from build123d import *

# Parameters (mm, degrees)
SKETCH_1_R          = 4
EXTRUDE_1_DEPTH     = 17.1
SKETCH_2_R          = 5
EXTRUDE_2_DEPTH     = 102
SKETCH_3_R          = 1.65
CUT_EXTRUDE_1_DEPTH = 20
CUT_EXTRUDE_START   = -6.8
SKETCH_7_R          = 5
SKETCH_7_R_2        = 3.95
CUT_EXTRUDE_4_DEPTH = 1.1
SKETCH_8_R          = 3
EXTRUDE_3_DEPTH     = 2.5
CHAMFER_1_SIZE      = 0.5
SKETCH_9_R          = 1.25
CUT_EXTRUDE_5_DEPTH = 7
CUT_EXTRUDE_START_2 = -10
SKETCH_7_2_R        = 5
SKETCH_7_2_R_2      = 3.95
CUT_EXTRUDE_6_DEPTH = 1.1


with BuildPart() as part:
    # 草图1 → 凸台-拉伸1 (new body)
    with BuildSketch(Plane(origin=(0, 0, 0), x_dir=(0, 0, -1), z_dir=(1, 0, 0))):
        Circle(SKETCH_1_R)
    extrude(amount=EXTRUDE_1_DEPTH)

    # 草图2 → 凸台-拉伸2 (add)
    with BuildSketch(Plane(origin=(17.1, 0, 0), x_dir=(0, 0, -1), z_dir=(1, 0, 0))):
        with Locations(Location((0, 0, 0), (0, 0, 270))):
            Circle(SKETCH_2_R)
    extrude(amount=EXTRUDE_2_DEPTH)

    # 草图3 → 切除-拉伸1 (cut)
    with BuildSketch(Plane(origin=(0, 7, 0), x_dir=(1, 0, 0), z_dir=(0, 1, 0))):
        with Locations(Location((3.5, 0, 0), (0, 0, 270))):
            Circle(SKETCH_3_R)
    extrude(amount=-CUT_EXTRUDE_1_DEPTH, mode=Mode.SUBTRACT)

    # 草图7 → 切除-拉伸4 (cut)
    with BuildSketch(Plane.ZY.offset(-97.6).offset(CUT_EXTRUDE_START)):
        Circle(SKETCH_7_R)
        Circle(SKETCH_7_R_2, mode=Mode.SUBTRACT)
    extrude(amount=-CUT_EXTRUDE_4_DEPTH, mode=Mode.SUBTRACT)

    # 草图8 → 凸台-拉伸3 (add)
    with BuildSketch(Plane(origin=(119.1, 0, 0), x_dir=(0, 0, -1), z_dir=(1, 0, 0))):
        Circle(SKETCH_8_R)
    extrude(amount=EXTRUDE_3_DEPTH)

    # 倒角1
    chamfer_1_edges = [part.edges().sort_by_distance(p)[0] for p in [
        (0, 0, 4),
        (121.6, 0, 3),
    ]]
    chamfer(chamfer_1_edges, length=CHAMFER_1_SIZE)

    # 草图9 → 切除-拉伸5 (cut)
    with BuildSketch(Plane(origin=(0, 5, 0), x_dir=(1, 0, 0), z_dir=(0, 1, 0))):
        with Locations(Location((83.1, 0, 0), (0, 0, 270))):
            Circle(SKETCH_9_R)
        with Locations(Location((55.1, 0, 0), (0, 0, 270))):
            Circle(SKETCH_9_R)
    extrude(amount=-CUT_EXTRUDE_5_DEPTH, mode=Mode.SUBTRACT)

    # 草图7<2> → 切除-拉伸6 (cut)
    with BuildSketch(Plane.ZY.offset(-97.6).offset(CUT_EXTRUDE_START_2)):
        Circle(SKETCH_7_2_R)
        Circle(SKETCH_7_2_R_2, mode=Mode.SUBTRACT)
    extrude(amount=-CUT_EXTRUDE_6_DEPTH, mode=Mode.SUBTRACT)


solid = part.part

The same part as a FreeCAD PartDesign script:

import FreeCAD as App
import Part
import Sketcher
from FreeCAD import Vector


def edges_at(feature, points):
    """Names of the edges that pass closest to the given points."""
    edges = feature.Shape.Edges
    near = lambda p: min(range(len(edges)), key=lambda i: edges[i].distToShape(Part.Vertex(*p))[0])
    return sorted({f"Edge{near(p) + 1}" for p in points})

doc = App.newDocument("Part")
body = doc.addObject("PartDesign::Body", "Body")

# Sketch on YZ plane
sketch1 = body.newObject("Sketcher::SketchObject", "Sketch")
sketch1.AttachmentSupport = (doc.getObject("YZ_Plane"), [""])
sketch1.MapMode = "FlatFace"
sketch1.addGeometry(Part.Circle(Vector(0, 0, 0), Vector(0, 0, 1), 4), False)
sketch1.addConstraint(Sketcher.Constraint("Coincident", 0, 3, -1, 1))
sketch1.addConstraint(Sketcher.Constraint("Diameter", 0, 8.0))
pad1 = body.newObject("PartDesign::Pad", "Pad")
pad1.Profile = sketch1
pad1.Length = 17.1

# Sketch on YZ plane
sketch2 = body.newObject("Sketcher::SketchObject", "Sketch001")
sketch2.AttachmentSupport = (doc.getObject("YZ_Plane"), [""])
sketch2.MapMode = "FlatFace"
sketch2.AttachmentOffset = App.Placement(Vector(0, 0, 17.1), App.Rotation())
sketch2.addGeometry(Part.Circle(Vector(0, 0, 0), Vector(0, 0, 1), 5), False)
sketch2.addConstraint(Sketcher.Constraint("Coincident", 0, 3, -1, 1))
sketch2.addConstraint(Sketcher.Constraint("Diameter", 0, 10.0))
pad2 = body.newObject("PartDesign::Pad", "Pad001")
pad2.Profile = sketch2
pad2.Length = 102

# Sketch on XZ plane
sketch3 = body.newObject("Sketcher::SketchObject", "Sketch002")
sketch3.AttachmentSupport = (doc.getObject("XZ_Plane"), [""])
sketch3.MapMode = "FlatFace"
sketch3.AttachmentOffset = App.Placement(Vector(0, 0, -7), App.Rotation())
sketch3.addGeometry(Part.Circle(Vector(3.5, 0, 0), Vector(0, 0, 1), 1.65), False)
sketch3.addConstraint(Sketcher.Constraint("PointOnObject", 0, 3, -1))
sketch3.addConstraint(Sketcher.Constraint("Diameter", 0, 3.3))
sketch3.addConstraint(Sketcher.Constraint("DistanceX", -1, 1, 0, 3, 3.5))
pocket1 = body.newObject("PartDesign::Pocket", "Pocket")
pocket1.Profile = sketch3
pocket1.Length = 20
pocket1.Reversed = True

# Sketch on YZ plane
sketch4 = body.newObject("Sketcher::SketchObject", "Sketch003")
sketch4.AttachmentSupport = (doc.getObject("YZ_Plane"), [""])
sketch4.MapMode = "FlatFace"
sketch4.AttachmentOffset = App.Placement(Vector(0, 0, 104.4), App.Rotation())
sketch4.addGeometry(Part.Circle(Vector(0, 0, 0), Vector(0, 0, 1), 5), False)
sketch4.addGeometry(Part.Circle(Vector(0, 0, 0), Vector(0, 0, 1), 3.95), False)
sketch4.addConstraint(Sketcher.Constraint("Coincident", 0, 3, -1, 1))
sketch4.addConstraint(Sketcher.Constraint("Coincident", 1, 3, -1, 1))
sketch4.addConstraint(Sketcher.Constraint("Diameter", 0, 10.0))
sketch4.addConstraint(Sketcher.Constraint("Diameter", 1, 7.9))
pocket2 = body.newObject("PartDesign::Pocket", "Pocket001")
pocket2.Profile = sketch4
pocket2.Length = 1.1
pocket2.Reversed = True

# Sketch on YZ plane
sketch5 = body.newObject("Sketcher::SketchObject", "Sketch004")
sketch5.AttachmentSupport = (doc.getObject("YZ_Plane"), [""])
sketch5.MapMode = "FlatFace"
sketch5.AttachmentOffset = App.Placement(Vector(0, 0, 119.1), App.Rotation())
sketch5.addGeometry(Part.Circle(Vector(0, 0, 0), Vector(0, 0, 1), 3), False)
sketch5.addConstraint(Sketcher.Constraint("Coincident", 0, 3, -1, 1))
sketch5.addConstraint(Sketcher.Constraint("Diameter", 0, 6.0))
pad3 = body.newObject("PartDesign::Pad", "Pad002")
pad3.Profile = sketch5
pad3.Length = 2.5
doc.recompute()

chamfer = body.newObject("PartDesign::Chamfer", "Chamfer")
chamfer.Base = (pad3, edges_at(pad3, [(0, 0, 4), (121.6, 0, 3)]))
chamfer.Size = 0.5

# Sketch on XZ plane
sketch6 = body.newObject("Sketcher::SketchObject", "Sketch005")
sketch6.AttachmentSupport = (doc.getObject("XZ_Plane"), [""])
sketch6.MapMode = "FlatFace"
sketch6.AttachmentOffset = App.Placement(Vector(0, 0, -5), App.Rotation())
sketch6.addGeometry(Part.Circle(Vector(83.1, 0, 0), Vector(0, 0, 1), 1.25), False)
sketch6.addGeometry(Part.Circle(Vector(55.1, 0, 0), Vector(0, 0, 1), 1.25), False)
sketch6.addConstraint(Sketcher.Constraint("Equal", 0, 1))
sketch6.addConstraint(Sketcher.Constraint("PointOnObject", 0, 3, -1))
sketch6.addConstraint(Sketcher.Constraint("PointOnObject", 1, 3, -1))
sketch6.addConstraint(Sketcher.Constraint("Diameter", 0, 2.5))
sketch6.addConstraint(Sketcher.Constraint("DistanceX", 1, 3, 0, 3, 28.0))
sketch6.addConstraint(Sketcher.Constraint("DistanceX", -1, 1, 0, 3, 83.1))
pocket3 = body.newObject("PartDesign::Pocket", "Pocket002")
pocket3.Profile = sketch6
pocket3.Length = 7
pocket3.Reversed = True

# Sketch on YZ plane
sketch7 = body.newObject("Sketcher::SketchObject", "Sketch006")
sketch7.AttachmentSupport = (doc.getObject("YZ_Plane"), [""])
sketch7.MapMode = "FlatFace"
sketch7.AttachmentOffset = App.Placement(Vector(0, 0, 107.6), App.Rotation())
sketch7.addGeometry(Part.Circle(Vector(0, 0, 0), Vector(0, 0, 1), 5), False)
sketch7.addGeometry(Part.Circle(Vector(0, 0, 0), Vector(0, 0, 1), 3.95), False)
sketch7.addConstraint(Sketcher.Constraint("Coincident", 0, 3, -1, 1))
sketch7.addConstraint(Sketcher.Constraint("Coincident", 1, 3, -1, 1))
sketch7.addConstraint(Sketcher.Constraint("Diameter", 0, 10.0))
sketch7.addConstraint(Sketcher.Constraint("Diameter", 1, 7.9))
pocket4 = body.newObject("PartDesign::Pocket", "Pocket003")
pocket4.Profile = sketch7
pocket4.Length = 1.1
pocket4.Reversed = True

doc.recompute()
